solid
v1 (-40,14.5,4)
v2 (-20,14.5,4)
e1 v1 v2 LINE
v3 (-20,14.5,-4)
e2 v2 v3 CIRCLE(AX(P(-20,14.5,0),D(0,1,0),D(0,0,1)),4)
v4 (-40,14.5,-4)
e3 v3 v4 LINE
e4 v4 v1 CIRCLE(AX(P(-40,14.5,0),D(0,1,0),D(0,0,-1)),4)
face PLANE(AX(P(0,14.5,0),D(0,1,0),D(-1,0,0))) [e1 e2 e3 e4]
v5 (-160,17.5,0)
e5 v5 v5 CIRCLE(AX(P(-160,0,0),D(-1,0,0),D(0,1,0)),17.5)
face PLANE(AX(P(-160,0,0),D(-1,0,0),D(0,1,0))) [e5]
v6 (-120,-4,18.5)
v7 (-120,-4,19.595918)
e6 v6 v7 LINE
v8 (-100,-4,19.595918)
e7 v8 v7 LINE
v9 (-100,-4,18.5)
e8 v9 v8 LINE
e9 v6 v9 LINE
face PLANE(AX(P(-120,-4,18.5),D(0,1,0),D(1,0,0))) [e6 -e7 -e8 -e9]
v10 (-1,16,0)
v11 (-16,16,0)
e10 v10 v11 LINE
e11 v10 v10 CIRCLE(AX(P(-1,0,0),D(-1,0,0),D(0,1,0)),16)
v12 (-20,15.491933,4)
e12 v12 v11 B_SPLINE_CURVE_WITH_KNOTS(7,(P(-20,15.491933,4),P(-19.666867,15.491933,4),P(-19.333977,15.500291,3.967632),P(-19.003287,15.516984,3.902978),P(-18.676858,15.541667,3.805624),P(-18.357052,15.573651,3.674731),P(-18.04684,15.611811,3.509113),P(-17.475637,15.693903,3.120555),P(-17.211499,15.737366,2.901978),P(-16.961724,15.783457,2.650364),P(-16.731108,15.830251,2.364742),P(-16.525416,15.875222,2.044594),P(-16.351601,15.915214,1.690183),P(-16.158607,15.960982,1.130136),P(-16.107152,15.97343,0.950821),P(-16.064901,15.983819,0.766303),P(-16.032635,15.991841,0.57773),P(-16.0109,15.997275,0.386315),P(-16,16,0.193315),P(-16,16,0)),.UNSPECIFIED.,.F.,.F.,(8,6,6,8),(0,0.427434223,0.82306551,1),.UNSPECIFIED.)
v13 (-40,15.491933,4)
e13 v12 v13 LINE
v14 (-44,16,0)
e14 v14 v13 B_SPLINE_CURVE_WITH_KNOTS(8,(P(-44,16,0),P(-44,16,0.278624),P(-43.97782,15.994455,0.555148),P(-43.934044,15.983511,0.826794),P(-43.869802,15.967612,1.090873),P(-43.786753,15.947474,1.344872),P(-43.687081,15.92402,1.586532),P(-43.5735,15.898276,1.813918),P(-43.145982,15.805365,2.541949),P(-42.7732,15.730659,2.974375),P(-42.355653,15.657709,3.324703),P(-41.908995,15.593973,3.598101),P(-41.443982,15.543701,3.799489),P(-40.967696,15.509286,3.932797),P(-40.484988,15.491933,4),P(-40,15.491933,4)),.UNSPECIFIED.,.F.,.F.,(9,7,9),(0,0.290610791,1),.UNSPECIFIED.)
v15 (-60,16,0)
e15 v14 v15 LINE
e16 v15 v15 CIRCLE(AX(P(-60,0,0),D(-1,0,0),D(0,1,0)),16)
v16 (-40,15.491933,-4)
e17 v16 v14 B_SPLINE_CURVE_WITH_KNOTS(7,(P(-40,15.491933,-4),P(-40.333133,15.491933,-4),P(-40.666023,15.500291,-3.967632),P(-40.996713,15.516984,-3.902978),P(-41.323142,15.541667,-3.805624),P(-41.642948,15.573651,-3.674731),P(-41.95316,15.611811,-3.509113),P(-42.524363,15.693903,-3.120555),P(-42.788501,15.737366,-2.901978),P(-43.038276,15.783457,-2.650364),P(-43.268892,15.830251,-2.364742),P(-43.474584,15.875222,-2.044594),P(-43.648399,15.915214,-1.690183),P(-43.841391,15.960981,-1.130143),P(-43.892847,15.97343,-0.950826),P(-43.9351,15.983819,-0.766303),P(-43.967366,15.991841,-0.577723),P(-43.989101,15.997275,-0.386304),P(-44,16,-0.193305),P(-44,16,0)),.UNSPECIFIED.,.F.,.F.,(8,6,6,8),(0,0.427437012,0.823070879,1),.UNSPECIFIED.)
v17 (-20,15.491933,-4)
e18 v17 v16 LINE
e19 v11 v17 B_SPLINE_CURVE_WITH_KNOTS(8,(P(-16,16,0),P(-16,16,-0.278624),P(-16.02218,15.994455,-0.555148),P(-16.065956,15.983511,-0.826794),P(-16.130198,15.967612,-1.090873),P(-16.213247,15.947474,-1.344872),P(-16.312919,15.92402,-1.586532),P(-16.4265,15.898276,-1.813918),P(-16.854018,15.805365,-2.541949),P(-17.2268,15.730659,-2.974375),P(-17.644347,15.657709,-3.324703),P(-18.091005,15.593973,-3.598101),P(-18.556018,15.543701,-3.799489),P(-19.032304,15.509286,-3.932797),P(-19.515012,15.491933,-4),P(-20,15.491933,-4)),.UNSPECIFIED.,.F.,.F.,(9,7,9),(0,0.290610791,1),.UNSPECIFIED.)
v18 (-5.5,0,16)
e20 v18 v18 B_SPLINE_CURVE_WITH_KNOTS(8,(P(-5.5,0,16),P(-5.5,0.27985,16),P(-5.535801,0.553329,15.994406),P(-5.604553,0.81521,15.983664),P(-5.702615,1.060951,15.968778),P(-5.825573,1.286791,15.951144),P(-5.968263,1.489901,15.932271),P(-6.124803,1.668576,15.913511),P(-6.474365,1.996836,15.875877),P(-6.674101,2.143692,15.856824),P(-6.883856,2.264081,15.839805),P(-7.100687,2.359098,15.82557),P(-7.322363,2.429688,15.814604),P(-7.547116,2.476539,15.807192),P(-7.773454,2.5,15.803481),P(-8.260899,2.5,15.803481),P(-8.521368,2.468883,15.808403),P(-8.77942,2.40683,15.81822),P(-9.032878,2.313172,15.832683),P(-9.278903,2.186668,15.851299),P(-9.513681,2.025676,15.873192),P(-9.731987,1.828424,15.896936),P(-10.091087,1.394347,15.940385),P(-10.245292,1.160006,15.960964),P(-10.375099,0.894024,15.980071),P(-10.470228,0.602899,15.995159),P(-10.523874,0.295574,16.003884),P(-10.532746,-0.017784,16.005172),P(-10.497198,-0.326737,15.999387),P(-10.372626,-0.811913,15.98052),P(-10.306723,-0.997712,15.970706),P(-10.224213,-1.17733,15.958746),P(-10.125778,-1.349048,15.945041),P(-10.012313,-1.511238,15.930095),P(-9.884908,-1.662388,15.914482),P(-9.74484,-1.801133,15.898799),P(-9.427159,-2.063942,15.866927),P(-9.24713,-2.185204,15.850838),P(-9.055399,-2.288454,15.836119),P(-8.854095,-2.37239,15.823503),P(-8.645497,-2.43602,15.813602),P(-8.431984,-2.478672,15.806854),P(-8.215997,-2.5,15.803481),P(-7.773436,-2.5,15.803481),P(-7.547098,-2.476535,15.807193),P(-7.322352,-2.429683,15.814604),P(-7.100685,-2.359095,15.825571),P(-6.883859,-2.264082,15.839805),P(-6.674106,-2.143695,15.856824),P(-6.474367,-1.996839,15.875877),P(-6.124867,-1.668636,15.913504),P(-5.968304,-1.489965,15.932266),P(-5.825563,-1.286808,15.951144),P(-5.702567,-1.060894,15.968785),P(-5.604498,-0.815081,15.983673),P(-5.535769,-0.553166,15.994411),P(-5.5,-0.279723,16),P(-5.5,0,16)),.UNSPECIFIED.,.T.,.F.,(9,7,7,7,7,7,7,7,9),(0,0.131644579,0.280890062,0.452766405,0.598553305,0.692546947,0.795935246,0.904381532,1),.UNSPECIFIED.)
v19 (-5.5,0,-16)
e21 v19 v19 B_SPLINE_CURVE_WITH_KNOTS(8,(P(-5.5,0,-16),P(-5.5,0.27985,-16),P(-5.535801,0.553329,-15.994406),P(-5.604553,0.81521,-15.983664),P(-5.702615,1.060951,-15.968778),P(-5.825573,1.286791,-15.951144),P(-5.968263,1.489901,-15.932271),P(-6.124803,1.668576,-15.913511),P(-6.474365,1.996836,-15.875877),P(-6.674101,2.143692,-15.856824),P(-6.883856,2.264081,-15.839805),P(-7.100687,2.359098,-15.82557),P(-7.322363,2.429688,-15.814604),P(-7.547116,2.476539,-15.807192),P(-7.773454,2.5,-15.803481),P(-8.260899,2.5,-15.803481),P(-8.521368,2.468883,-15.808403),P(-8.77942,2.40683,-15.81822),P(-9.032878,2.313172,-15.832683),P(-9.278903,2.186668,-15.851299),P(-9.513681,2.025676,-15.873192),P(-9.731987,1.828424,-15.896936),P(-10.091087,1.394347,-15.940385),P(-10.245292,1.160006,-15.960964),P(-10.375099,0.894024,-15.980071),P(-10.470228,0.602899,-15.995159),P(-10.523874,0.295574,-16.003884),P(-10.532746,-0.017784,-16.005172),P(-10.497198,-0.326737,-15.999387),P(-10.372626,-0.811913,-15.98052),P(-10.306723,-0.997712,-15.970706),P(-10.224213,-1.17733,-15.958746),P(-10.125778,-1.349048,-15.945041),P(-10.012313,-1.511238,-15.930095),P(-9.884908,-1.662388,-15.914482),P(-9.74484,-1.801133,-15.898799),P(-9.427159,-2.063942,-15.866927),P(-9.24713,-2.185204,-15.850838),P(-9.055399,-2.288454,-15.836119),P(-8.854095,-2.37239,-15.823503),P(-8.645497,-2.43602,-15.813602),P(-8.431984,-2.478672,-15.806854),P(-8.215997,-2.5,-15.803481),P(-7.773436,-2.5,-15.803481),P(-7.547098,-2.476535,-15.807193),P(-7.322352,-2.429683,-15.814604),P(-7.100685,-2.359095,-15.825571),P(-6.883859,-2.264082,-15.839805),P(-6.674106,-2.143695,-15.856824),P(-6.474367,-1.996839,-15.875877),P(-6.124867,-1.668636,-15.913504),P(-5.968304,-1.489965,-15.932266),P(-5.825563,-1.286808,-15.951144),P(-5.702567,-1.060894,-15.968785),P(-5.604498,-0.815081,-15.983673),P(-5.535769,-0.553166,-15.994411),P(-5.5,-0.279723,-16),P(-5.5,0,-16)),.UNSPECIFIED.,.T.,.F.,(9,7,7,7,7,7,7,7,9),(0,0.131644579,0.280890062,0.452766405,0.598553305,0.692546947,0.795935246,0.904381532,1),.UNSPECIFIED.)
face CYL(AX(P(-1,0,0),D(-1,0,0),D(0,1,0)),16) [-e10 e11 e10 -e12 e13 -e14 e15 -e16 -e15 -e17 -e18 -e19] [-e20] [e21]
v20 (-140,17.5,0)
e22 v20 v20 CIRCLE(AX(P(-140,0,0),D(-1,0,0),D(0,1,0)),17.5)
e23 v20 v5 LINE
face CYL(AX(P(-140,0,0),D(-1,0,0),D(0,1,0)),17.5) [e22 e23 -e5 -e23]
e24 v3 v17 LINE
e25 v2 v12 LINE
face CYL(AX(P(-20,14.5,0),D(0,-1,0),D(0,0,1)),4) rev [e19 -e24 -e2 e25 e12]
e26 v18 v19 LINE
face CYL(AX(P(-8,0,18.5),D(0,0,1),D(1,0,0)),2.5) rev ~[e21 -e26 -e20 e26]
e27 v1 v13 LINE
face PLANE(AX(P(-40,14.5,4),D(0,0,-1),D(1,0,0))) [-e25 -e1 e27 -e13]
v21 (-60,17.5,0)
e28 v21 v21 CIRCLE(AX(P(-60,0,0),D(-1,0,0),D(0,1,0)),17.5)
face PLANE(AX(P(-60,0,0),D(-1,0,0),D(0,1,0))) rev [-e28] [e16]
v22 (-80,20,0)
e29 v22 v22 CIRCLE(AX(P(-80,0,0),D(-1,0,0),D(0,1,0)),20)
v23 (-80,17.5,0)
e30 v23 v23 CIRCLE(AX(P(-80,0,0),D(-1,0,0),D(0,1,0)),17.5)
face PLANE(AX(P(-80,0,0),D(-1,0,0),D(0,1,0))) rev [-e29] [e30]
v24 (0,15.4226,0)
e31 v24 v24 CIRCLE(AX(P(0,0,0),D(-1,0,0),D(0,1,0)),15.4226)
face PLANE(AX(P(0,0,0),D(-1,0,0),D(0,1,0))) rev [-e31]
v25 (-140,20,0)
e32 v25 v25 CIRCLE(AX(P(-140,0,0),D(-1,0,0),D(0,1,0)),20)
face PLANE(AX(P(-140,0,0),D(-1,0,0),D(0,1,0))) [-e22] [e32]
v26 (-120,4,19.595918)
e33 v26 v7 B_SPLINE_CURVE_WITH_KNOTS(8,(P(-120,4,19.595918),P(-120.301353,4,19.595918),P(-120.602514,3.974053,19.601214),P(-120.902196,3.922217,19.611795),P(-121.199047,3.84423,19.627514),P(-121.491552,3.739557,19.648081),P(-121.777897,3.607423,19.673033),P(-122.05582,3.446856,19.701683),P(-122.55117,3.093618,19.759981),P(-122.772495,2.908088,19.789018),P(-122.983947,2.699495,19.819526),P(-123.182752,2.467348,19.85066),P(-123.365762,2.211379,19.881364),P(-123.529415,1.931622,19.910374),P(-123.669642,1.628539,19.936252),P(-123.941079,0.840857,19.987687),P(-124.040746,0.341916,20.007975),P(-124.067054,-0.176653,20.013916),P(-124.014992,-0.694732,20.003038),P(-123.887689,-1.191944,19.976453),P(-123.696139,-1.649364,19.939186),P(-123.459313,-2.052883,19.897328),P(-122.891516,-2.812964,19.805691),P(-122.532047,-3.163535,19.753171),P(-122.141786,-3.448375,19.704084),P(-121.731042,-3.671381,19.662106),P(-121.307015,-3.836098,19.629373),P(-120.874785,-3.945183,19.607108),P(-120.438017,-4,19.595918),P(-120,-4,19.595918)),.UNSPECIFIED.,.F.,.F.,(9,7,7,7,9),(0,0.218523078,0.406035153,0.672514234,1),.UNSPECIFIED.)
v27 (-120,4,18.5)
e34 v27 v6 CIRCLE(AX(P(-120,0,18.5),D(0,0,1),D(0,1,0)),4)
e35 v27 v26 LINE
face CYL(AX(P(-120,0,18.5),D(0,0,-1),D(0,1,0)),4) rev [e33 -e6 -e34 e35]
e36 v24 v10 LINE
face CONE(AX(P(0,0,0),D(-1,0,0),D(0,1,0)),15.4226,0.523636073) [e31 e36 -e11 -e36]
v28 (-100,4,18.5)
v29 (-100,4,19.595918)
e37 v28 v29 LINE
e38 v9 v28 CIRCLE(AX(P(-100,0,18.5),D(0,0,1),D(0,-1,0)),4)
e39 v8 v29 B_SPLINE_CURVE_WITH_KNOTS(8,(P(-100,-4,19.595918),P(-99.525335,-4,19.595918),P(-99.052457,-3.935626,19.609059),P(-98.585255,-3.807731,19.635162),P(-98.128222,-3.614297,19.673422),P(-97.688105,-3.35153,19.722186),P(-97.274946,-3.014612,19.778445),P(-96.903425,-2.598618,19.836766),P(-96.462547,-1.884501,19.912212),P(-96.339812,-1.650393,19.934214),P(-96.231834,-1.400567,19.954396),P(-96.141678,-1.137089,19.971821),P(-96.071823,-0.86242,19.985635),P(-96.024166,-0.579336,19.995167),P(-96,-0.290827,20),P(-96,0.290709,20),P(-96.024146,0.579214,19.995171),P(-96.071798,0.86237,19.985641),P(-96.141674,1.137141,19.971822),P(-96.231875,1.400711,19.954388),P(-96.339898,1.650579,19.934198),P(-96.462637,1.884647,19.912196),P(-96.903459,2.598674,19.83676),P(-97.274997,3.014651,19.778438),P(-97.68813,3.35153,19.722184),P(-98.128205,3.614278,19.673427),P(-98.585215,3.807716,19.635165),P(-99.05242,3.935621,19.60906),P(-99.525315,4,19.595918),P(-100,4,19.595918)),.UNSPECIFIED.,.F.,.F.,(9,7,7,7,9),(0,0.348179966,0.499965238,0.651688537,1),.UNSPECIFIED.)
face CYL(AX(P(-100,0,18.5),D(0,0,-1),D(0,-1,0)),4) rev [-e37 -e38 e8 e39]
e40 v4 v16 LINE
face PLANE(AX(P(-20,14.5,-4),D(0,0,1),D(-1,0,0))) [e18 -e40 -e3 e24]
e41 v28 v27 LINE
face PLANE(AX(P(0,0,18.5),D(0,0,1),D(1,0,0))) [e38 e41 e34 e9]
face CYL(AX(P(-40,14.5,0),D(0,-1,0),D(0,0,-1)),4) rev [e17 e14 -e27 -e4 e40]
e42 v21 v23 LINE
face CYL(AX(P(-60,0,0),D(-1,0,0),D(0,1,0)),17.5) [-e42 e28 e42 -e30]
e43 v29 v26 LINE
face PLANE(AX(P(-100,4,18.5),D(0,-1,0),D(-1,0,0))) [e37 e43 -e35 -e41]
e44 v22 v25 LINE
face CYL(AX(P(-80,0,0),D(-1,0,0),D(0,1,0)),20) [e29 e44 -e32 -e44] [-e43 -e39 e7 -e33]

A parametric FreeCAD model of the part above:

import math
import FreeCAD as App
import Part
import Sketcher
from FreeCAD import Vector


def add_polygon(sketch, points):
    """Adds a closed chain of lines whose ends are joined by coincident constraints."""
    first, n = sketch.GeometryCount, len(points)
    for a, b in zip(points, points[1:] + points[:1]):
        sketch.addGeometry(Part.LineSegment(App.Vector(*a, 0), App.Vector(*b, 0)), False)
    for i in range(n):
        sketch.addConstraint(Sketcher.Constraint("Coincident", first + i, 2, first + (i + 1) % n, 1))

doc = App.newDocument("Part")
body = doc.addObject("PartDesign::Body", "Body")

# Sketch on XY plane
sketch1 = body.newObject("Sketcher::SketchObject", "Sketch")
sketch1.AttachmentSupport = (doc.getObject("XY_Plane"), [""])
sketch1.MapMode = "FlatFace"
add_polygon(sketch1, [(-160, 0), (0, 0), (0, 15.4), (-1, 16), (-60, 16), (-60, 17.5), (-80, 17.5), (-80, 20), (-140, 20), (-140, 17.5), (-160, 17.5)])  # lines 0-10
sketch1.addConstraint([
    Sketcher.Constraint("Horizontal", 0),
    Sketcher.Constraint("Vertical", 1),
    Sketcher.Constraint("Horizontal", 3),
    Sketcher.Constraint("Vertical", 4),
    Sketcher.Constraint("Horizontal", 5),
    Sketcher.Constraint("Vertical", 6),
    Sketcher.Constraint("Horizontal", 7),
    Sketcher.Constraint("Vertical", 8),
    Sketcher.Constraint("Horizontal", 9),
    Sketcher.Constraint("Vertical", 10),
    Sketcher.Constraint("Coincident", 0, 2, -1, 1),
    Sketcher.Constraint("Horizontal", 5, 2, 8, 2),
    Sketcher.Constraint("Equal", 5, 9),
    Sketcher.Constraint("DistanceX", 0, 1, 0, 2, 160.0),
    Sketcher.Constraint("DistanceX", 5, 2, 5, 1, 20.0),
    Sketcher.Constraint("DistanceX", 7, 2, 7, 1, 60.0),
    Sketcher.Constraint("DistanceX", 2, 2, -1, 1, 1.0),
    Sketcher.Constraint("DistanceY", -1, 1, 6, 2, 20.0),
    Sketcher.Constraint("DistanceY", 4, 1, 4, 2, 1.5),
    Sketcher.Constraint("DistanceY", 6, 1, 6, 2, 2.5),
    Sketcher.Constraint("DistanceY", 1, 1, 1, 2, 15.4226),
])
revolution = body.newObject("PartDesign::Revolution", "Revolution")
revolution.Profile = sketch1
revolution.ReferenceAxis = (sketch1, ["H_Axis"])
revolution.Angle = 360

# Sketch on XZ plane
sketch2 = body.newObject("Sketcher::SketchObject", "Sketch001")
sketch2.AttachmentSupport = (doc.getObject("XZ_Plane"), [""])
sketch2.MapMode = "FlatFace"
sketch2.AttachmentOffset = App.Placement(Vector(0, 0, -14.5), App.Rotation())
sketch2.addGeometry([
    Part.ArcOfCircle(Part.Circle(Vector(-40, 0, 0), Vector(0, 0, 1), 4), math.radians(90), math.radians(270)),
    Part.LineSegment(Vector(-40, 4, 0), Vector(-20, 4, 0)),
    Part.ArcOfCircle(Part.Circle(Vector(-20, 0, 0), Vector(0, 0, 1), 4), math.radians(-90), math.radians(90)),
    Part.LineSegment(Vector(-20, -4, 0), Vector(-40, -4, 0)),
], False)
sketch2.addConstraint([
    Sketcher.Constraint("Tangent", 0, 1, 1, 1),
    Sketcher.Constraint("Tangent", 1, 2, 2, 2),
    Sketcher.Constraint("Tangent", 2, 1, 3, 1),
    Sketcher.Constraint("Tangent", 3, 2, 0, 2),
    Sketcher.Constraint("Horizontal", 1),
    Sketcher.Constraint("Horizontal", 3),
    Sketcher.Constraint("PointOnObject", 0, 3, -1),
    Sketcher.Constraint("Radius", 0, 4.0),
    Sketcher.Constraint("DistanceX", 1, 1, 1, 2, 20.0),
    Sketcher.Constraint("DistanceX", 2, 3, -1, 1, 20.0),
])
pocket1 = body.newObject("PartDesign::Pocket", "Pocket")
pocket1.Profile = sketch2
pocket1.Type = "ThroughAll"

# Sketch on XY plane
sketch3 = body.newObject("Sketcher::SketchObject", "Sketch002")
sketch3.AttachmentSupport = (doc.getObject("XY_Plane"), [""])
sketch3.MapMode = "FlatFace"
sketch3.AttachmentOffset = App.Placement(Vector(0, 0, 18.5), App.Rotation())
sketch3.addGeometry([
    Part.ArcOfCircle(Part.Circle(Vector(-120, 0, 0), Vector(0, 0, 1), 4), math.radians(90), math.radians(270)),
    Part.LineSegment(Vector(-120, -4, 0), Vector(-100, -4, 0)),
    Part.ArcOfCircle(Part.Circle(Vector(-100, 0, 0), Vector(0, 0, 1), 4), math.radians(-90), math.radians(90)),
    Part.LineSegment(Vector(-100, 4, 0), Vector(-120, 4, 0)),
], False)
sketch3.addConstraint([
    Sketcher.Constraint("Tangent", 0, 2, 1, 1),
    Sketcher.Constraint("Tangent", 1, 2, 2, 1),
    Sketcher.Constraint("Tangent", 2, 2, 3, 1),
    Sketcher.Constraint("Tangent", 3, 2, 0, 1),
    Sketcher.Constraint("Horizontal", 1),
    Sketcher.Constraint("Horizontal", 3),
    Sketcher.Constraint("PointOnObject", 0, 3, -1),
    Sketcher.Constraint("Radius", 0, 4.0),
    Sketcher.Constraint("DistanceX", 1, 1, 1, 2, 20.0),
    Sketcher.Constraint("DistanceX", 0, 3, -1, 1, 120.0),
])
pocket2 = body.newObject("PartDesign::Pocket", "Pocket001")
pocket2.Profile = sketch3
pocket2.Type = "ThroughAll"
pocket2.Reversed = True

# Sketch on XY plane
sketch4 = body.newObject("Sketcher::SketchObject", "Sketch003")
sketch4.AttachmentSupport = (doc.getObject("XY_Plane"), [""])
sketch4.MapMode = "FlatFace"
sketch4.AttachmentOffset = App.Placement(Vector(0, 0, 18.5), App.Rotation())
sketch4.addGeometry(Part.Circle(Vector(-8, 0, 0), Vector(0, 0, 1), 2.5), False)
sketch4.addConstraint([
    Sketcher.Constraint("PointOnObject", 0, 3, -1),
    Sketcher.Constraint("Diameter", 0, 5.0),
    Sketcher.Constraint("DistanceX", 0, 3, -1, 1, 8.0),
])
pocket3 = body.newObject("PartDesign::Pocket", "Pocket002")
pocket3.Profile = sketch4
pocket3.Type = "ThroughAll"

doc.recompute()
